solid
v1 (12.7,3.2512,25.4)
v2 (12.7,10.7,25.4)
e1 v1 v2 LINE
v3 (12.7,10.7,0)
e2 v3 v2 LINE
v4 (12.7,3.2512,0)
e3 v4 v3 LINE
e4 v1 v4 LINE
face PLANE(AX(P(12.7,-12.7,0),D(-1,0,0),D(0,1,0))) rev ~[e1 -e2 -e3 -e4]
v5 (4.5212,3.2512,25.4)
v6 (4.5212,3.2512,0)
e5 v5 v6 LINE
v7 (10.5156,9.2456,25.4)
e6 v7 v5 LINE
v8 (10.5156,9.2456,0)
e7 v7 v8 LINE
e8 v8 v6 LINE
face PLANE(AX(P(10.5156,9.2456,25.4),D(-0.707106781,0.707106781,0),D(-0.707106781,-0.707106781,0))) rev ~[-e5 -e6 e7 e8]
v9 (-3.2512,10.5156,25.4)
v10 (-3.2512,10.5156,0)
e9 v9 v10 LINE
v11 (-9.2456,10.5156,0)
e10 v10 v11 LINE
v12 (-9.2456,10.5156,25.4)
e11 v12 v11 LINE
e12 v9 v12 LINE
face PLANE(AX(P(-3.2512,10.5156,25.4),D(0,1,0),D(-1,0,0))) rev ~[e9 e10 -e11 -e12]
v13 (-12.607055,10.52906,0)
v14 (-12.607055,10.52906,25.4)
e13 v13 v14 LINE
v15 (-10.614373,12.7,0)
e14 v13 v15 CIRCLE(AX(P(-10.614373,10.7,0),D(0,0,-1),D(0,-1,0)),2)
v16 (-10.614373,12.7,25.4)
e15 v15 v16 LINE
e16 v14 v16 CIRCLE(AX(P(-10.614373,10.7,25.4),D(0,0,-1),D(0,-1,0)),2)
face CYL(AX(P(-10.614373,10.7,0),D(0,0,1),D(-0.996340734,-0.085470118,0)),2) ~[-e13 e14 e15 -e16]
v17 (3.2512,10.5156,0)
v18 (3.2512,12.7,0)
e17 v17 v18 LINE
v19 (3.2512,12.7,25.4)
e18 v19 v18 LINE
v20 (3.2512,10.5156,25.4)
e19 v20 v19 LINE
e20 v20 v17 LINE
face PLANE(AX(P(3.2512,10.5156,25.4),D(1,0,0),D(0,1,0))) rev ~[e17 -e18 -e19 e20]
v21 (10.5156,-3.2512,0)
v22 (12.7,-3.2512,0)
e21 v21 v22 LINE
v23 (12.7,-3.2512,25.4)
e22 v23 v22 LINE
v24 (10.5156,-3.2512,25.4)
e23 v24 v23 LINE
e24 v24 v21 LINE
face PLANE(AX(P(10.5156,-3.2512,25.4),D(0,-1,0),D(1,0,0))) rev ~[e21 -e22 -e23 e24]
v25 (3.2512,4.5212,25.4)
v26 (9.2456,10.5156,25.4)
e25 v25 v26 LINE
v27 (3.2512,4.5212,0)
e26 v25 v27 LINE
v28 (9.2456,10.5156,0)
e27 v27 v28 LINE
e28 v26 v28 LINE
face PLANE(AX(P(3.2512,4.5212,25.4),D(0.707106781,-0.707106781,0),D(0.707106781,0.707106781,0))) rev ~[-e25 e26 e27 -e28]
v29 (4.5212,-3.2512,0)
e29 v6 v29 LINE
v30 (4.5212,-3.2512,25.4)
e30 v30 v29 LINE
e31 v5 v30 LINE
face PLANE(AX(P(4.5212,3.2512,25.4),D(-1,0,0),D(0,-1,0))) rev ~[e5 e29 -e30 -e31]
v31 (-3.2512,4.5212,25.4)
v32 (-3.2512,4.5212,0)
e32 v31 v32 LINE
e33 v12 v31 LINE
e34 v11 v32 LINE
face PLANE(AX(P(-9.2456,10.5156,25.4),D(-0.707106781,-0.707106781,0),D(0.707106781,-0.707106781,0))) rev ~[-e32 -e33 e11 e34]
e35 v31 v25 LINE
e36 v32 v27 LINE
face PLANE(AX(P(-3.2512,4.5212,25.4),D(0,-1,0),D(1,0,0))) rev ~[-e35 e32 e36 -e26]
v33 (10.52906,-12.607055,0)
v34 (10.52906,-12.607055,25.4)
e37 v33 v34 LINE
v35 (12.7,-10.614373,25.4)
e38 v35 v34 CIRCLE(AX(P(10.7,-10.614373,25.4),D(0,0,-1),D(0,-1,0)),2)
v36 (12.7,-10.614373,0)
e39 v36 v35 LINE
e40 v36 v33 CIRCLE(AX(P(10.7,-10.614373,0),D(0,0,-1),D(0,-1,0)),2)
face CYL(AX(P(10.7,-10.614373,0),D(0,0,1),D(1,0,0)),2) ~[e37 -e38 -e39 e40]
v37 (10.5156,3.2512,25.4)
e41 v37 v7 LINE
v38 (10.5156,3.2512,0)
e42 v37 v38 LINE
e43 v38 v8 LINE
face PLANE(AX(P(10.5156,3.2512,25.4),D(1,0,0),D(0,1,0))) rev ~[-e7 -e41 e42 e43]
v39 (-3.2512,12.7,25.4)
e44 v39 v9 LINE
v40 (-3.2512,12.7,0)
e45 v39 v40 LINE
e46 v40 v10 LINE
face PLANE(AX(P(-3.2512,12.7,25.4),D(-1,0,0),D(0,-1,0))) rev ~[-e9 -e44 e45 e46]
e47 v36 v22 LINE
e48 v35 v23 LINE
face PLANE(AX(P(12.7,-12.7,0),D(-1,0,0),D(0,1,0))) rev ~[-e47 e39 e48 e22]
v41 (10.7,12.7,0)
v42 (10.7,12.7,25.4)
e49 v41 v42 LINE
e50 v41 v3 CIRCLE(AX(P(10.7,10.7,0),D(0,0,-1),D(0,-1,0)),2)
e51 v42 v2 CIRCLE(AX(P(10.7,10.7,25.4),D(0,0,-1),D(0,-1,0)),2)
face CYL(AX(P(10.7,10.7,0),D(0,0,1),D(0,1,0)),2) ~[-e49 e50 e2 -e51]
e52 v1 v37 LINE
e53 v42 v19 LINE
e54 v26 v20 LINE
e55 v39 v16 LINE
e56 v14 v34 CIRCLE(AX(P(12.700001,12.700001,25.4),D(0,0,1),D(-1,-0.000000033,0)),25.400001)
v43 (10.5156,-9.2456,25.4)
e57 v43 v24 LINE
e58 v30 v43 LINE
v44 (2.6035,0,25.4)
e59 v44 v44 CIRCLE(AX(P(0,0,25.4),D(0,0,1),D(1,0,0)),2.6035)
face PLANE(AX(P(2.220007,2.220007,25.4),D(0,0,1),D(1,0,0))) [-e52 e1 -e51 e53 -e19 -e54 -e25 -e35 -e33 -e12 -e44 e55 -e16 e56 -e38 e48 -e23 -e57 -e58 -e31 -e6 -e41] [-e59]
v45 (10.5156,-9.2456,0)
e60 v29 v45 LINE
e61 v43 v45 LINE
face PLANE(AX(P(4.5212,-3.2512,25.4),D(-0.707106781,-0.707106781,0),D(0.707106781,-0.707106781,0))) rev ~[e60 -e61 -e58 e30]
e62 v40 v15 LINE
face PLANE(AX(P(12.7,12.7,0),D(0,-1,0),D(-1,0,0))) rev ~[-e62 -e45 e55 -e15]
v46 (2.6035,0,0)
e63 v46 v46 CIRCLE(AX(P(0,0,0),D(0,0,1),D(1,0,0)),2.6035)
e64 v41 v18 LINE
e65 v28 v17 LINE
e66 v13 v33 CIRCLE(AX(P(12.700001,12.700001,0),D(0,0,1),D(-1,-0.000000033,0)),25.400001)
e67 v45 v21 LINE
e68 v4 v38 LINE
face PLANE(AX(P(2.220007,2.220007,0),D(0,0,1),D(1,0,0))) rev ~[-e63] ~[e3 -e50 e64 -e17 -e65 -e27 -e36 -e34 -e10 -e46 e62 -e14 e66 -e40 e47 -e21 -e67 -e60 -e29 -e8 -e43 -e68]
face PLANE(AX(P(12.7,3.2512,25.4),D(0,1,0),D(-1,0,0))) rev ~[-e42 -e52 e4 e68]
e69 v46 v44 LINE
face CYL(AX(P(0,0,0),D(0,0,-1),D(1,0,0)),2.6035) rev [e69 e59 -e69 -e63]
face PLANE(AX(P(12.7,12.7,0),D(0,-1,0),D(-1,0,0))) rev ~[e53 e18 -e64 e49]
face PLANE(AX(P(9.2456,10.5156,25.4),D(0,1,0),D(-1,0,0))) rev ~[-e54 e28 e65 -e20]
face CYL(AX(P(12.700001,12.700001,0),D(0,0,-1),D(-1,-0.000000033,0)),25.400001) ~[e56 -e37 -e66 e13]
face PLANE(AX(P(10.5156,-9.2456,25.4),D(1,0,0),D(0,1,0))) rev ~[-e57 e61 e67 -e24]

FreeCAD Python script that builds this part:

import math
import FreeCAD as App
import Part
import Sketcher

V = App.Vector
Q = App.Units.Quantity


def edges_at(feature, points):
    """Names of the edges that pass closest to the given points."""
    edges = feature.Shape.Edges
    near = lambda p: min(range(len(edges)), key=lambda i: edges[i].distToShape(Part.Vertex(*p))[0])
    return sorted({f"Edge{near(p) + 1}" for p in points})

doc = App.newDocument("Part")
params = doc.addObject("Spreadsheet::Sheet", "Params")
for row, (alias, value) in enumerate([
    ("sketch1_radius", "1 in"),
    ("sketch1_diameter", "0.205 in"),
    ("pad1_length", "1 in"),
    ("sketch2_width", "0.256 in"),
    ("sketch2_width2", "0.236 in"),
    ("sketch2_width3", "0.086 in"),
    ("fillet_radius", "2 mm"),
], start=1):
    params.set(f"A{row}", alias)
    params.set(f"B{row}", "=" + value)
    params.setAlias(f"B{row}", alias)

body = doc.addObject("PartDesign::Body", "Body")

sketch1 = body.newObject("Sketcher::SketchObject", "Sketch")
sketch1.AttachmentSupport = (doc.getObject("XY_Plane"), [""])
sketch1.MapMode = "FlatFace"
sketch1.addGeometry([
    Part.LineSegment(V(12.7, -12.7, 0), V(12.7, 12.7, 0)),
    Part.LineSegment(V(12.7, 12.7, 0), V(-12.7, 12.7, 0)),
    Part.ArcOfCircle(Part.Circle(V(12.7, 12.7, 0), V(0, 0, 1), 25.4), math.radians(-180), math.radians(-90)),
    Part.Circle(V(0, 0, 0), V(0, 0, 1), 2.6),
], False)
sketch1.addConstraint([
    Sketcher.Constraint("Coincident", 0, 2, 1, 1),
    Sketcher.Constraint("Coincident", 1, 2, 2, 1),
    Sketcher.Constraint("Coincident", 2, 2, 0, 1),
    Sketcher.Constraint("Vertical", 0),
    Sketcher.Constraint("Horizontal", 1),
    Sketcher.Constraint("Coincident", 3, 3, -1, 1),
    Sketcher.Constraint("Coincident", 0, 2, 2, 3),
    Sketcher.Constraint("Symmetric", 1, 2, 2, 2, -1, 1),
    Sketcher.Constraint("Radius", 2, Q("1 in")),
    Sketcher.Constraint("Diameter", 3, Q("0.205 in")),
])
sketch1.setExpression("Constraints[8]", "Params.sketch1_radius")
sketch1.setExpression("Constraints[9]", "Params.sketch1_diameter")
pad1 = body.newObject("PartDesign::Pad", "Pad")
pad1.Profile = sketch1
pad1.setExpression("Length", "Params.pad1_length")

sketch2 = body.newObject("Sketcher::SketchObject", "Sketch001")
sketch2.AttachmentSupport = (doc.getObject("XY_Plane"), [""])
sketch2.MapMode = "FlatFace"
sketch2.AttachmentOffset = App.Placement(V(0, 0, 1 * 25.4), App.Rotation())
sketch2.addGeometry([
    Part.LineSegment(V(-3.3, 4.5, 0), V(3.3, 4.5, 0)),
    Part.LineSegment(V(3.3, 4.5, 0), V(9.2, 10.5, 0)),
    Part.LineSegment(V(9.2, 10.5, 0), V(3.3, 10.5, 0)),
    Part.LineSegment(V(3.3, 10.5, 0), V(3.3, 12.7, 0)),
    Part.LineSegment(V(3.3, 12.7, 0), V(-3.3, 12.7, 0)),
    Part.LineSegment(V(-3.3, 12.7, 0), V(-3.3, 10.5, 0)),
    Part.LineSegment(V(-3.3, 10.5, 0), V(-9.2, 10.5, 0)),
    Part.LineSegment(V(-9.2, 10.5, 0), V(-3.3, 4.5, 0)),
    Part.LineSegment(V(4.5, 3.3, 0), V(4.5, -3.3, 0)),
    Part.LineSegment(V(4.5, -3.3, 0), V(10.5, -9.2, 0)),
    Part.LineSegment(V(10.5, -9.2, 0), V(10.5, -3.3, 0)),
    Part.LineSegment(V(10.5, -3.3, 0), V(12.7, -3.3, 0)),
    Part.LineSegment(V(12.7, -3.3, 0), V(12.7, 3.3, 0)),
    Part.LineSegment(V(12.7, 3.3, 0), V(10.5, 3.3, 0)),
    Part.LineSegment(V(10.5, 3.3, 0), V(10.5, 9.2, 0)),
    Part.LineSegment(V(10.5, 9.2, 0), V(4.5, 3.3, 0)),
], False)
sketch2.addConstraint([
    Sketcher.Constraint("Coincident", 0, 2, 1, 1),
    Sketcher.Constraint("Coincident", 1, 2, 2, 1),
    Sketcher.Constraint("Coincident", 2, 2, 3, 1),
    Sketcher.Constraint("Coincident", 3, 2, 4, 1),
    Sketcher.Constraint("Coincident", 4, 2, 5, 1),
    Sketcher.Constraint("Coincident", 5, 2, 6, 1),
    Sketcher.Constraint("Coincident", 6, 2, 7, 1),
    Sketcher.Constraint("Coincident", 7, 2, 0, 1),
    Sketcher.Constraint("Coincident", 8, 2, 9, 1),
    Sketcher.Constraint("Coincident", 9, 2, 10, 1),
    Sketcher.Constraint("Coincident", 10, 2, 11, 1),
    Sketcher.Constraint("Coincident", 11, 2, 12, 1),
    Sketcher.Constraint("Coincident", 12, 2, 13, 1),
    Sketcher.Constraint("Coincident", 13, 2, 14, 1),
    Sketcher.Constraint("Coincident", 14, 2, 15, 1),
    Sketcher.Constraint("Coincident", 15, 2, 8, 1),
    Sketcher.Constraint("Horizontal", 0),
    Sketcher.Constraint("Horizontal", 2),
    Sketcher.Constraint("Vertical", 3),
    Sketcher.Constraint("Horizontal", 4),
    Sketcher.Constraint("Vertical", 5),
    Sketcher.Constraint("Horizontal", 6),
    Sketcher.Constraint("Vertical", 8),
    Sketcher.Constraint("Vertical", 10),
    Sketcher.Constraint("Horizontal", 11),
    Sketcher.Constraint("Vertical", 12),
    Sketcher.Constraint("Horizontal", 13),
    Sketcher.Constraint("Vertical", 14),
    Sketcher.Constraint("Symmetric", 2, 2, 5, 2, -2),
    Sketcher.Constraint("Symmetric", 10, 2, 13, 2, -1),
    Sketcher.Constraint("Perpendicular", 1, 7),
    Sketcher.Constraint("Parallel", 7, 9),
    Sketcher.Constraint("Perpendicular", 9, 15),
    Sketcher.Constraint("Horizontal", 8, 2, 10, 2),
    Sketcher.Constraint("Horizontal", 13, 2, 15, 2),
    Sketcher.Constraint("Vertical", 0, 2, 2, 2),
    Sketcher.Constraint("Vertical", 5, 2, 7, 2),
    Sketcher.Constraint("Equal", 2, 6),
    Sketcher.Constraint("Equal", 13, 3),
    Sketcher.Constraint("Equal", 4, 8),
    Sketcher.Constraint("Equal", 6, 10),
    Sketcher.Constraint("DistanceY", -1, 1, 3, 2, Q("0.5 in")),
    Sketcher.Constraint("DistanceX", -1, 1, 11, 2, Q("0.5 in")),
    Sketcher.Constraint("DistanceX", 0, 1, 0, 2, Q("0.256 in")),
    Sketcher.Constraint("DistanceX", 2, 2, 2, 1, Q("0.236 in")),
    Sketcher.Constraint("DistanceX", 11, 1, 11, 2, Q("0.086 in")),
])
sketch2.setExpression("Constraints[43]", "Params.sketch2_width")
sketch2.setExpression("Constraints[44]", "Params.sketch2_width2")
sketch2.setExpression("Constraints[45]", "Params.sketch2_width3")
pocket1 = body.newObject("PartDesign::Pocket", "Pocket")
pocket1.Profile = sketch2
pocket1.Type = "ThroughAll"
doc.recompute()

fillet = body.newObject("PartDesign::Fillet", "Fillet")
fillet.Base = (pocket1, edges_at(pocket1, [(12.7, 12.7, 12.7), (12.7, -12.7, 12.7), (-12.7, 12.7, 12.7)]))
fillet.setExpression("Radius", "Params.fillet_radius")

doc.recompute()
